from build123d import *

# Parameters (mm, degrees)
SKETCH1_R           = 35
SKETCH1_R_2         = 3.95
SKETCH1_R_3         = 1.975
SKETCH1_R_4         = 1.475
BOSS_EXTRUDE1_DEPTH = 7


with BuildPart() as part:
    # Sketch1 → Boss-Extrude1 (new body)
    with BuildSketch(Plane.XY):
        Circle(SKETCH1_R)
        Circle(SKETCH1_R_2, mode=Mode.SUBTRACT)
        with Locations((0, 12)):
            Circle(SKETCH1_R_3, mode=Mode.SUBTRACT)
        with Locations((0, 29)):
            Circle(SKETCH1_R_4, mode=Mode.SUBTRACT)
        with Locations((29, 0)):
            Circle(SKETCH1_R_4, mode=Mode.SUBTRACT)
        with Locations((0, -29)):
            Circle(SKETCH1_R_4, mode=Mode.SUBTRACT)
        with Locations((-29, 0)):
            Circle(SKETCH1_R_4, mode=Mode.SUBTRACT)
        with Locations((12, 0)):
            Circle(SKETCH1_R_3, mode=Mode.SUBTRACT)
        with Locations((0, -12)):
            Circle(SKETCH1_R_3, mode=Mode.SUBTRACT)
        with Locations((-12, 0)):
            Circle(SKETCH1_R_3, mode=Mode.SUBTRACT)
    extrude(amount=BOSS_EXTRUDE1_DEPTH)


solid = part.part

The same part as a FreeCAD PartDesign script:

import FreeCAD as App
import Part
import Sketcher

V = App.Vector
Q = App.Units.Quantity

doc = App.newDocument("Part")
body = doc.addObject("PartDesign::Body", "Body")

# Sketch on XY plane
sketch1 = body.newObject("Sketcher::SketchObject", "Sketch")
sketch1.AttachmentSupport = (doc.getObject("XY_Plane"), [""])
sketch1.MapMode = "FlatFace"
sketch1.addGeometry([
    Part.Circle(V(0, 0, 0), V(0, 0, 1), 35),  # 0
    Part.Circle(V(0, -29, 0), V(0, 0, 1), 1.5),  # 1
    Part.Circle(V(0, -12, 0), V(0, 0, 1), 2),  # 2
    Part.Circle(V(-29, 0, 0), V(0, 0, 1), 1.5),  # 3
    Part.Circle(V(-12, 0, 0), V(0, 0, 1), 2),  # 4
    Part.Circle(V(0, 0, 0), V(0, 0, 1), 4),  # 5
    Part.Circle(V(12, 0, 0), V(0, 0, 1), 2),  # 6
    Part.Circle(V(0, 12, 0), V(0, 0, 1), 2),  # 7
    Part.Circle(V(29, 0, 0), V(0, 0, 1), 1.5),  # 8
    Part.Circle(V(0, 29, 0), V(0, 0, 1), 1.5),  # 9
], False)
sketch1.addConstraint([
    Sketcher.Constraint("Coincident", 0, 3, -1, 1),
    Sketcher.Constraint("Coincident", 5, 3, -1, 1),
    Sketcher.Constraint("Equal", 1, 3),
    Sketcher.Constraint("Equal", 2, 4),
    Sketcher.Constraint("Equal", 4, 6),
    Sketcher.Constraint("Equal", 6, 7),
    Sketcher.Constraint("Equal", 3, 8),
    Sketcher.Constraint("Equal", 8, 9),
    Sketcher.Constraint("Symmetric", 4, 3, 6, 3, -1, 1),
    Sketcher.Constraint("Symmetric", 2, 3, 7, 3, -1, 1),
    Sketcher.Constraint("Symmetric", 3, 3, 8, 3, -1, 1),
    Sketcher.Constraint("Symmetric", 1, 3, 9, 3, -1, 1),
    Sketcher.Constraint("PointOnObject", 1, 3, -2),
    Sketcher.Constraint("PointOnObject", 2, 3, -2),
    Sketcher.Constraint("PointOnObject", 3, 3, -1),
    Sketcher.Constraint("PointOnObject", 4, 3, -1),
    Sketcher.Constraint("Diameter", 0, Q("70 mm")),
    Sketcher.Constraint("Diameter", 5, Q("7.9 mm")),
    Sketcher.Constraint("Diameter", 1, Q("2.95 mm")),
    Sketcher.Constraint("Diameter", 2, Q("3.95 mm")),
    Sketcher.Constraint("DistanceY", 1, 3, -1, 1, Q("29 mm")),
    Sketcher.Constraint("DistanceY", 2, 3, -1, 1, Q("12 mm")),
    Sketcher.Constraint("DistanceX", 3, 3, -1, 1, Q("29 mm")),
    Sketcher.Constraint("DistanceX", 4, 3, -1, 1, Q("12 mm")),
])
pad1 = body.newObject("PartDesign::Pad", "Pad")
pad1.Profile = sketch1
pad1.Length = 7

doc.recompute()
